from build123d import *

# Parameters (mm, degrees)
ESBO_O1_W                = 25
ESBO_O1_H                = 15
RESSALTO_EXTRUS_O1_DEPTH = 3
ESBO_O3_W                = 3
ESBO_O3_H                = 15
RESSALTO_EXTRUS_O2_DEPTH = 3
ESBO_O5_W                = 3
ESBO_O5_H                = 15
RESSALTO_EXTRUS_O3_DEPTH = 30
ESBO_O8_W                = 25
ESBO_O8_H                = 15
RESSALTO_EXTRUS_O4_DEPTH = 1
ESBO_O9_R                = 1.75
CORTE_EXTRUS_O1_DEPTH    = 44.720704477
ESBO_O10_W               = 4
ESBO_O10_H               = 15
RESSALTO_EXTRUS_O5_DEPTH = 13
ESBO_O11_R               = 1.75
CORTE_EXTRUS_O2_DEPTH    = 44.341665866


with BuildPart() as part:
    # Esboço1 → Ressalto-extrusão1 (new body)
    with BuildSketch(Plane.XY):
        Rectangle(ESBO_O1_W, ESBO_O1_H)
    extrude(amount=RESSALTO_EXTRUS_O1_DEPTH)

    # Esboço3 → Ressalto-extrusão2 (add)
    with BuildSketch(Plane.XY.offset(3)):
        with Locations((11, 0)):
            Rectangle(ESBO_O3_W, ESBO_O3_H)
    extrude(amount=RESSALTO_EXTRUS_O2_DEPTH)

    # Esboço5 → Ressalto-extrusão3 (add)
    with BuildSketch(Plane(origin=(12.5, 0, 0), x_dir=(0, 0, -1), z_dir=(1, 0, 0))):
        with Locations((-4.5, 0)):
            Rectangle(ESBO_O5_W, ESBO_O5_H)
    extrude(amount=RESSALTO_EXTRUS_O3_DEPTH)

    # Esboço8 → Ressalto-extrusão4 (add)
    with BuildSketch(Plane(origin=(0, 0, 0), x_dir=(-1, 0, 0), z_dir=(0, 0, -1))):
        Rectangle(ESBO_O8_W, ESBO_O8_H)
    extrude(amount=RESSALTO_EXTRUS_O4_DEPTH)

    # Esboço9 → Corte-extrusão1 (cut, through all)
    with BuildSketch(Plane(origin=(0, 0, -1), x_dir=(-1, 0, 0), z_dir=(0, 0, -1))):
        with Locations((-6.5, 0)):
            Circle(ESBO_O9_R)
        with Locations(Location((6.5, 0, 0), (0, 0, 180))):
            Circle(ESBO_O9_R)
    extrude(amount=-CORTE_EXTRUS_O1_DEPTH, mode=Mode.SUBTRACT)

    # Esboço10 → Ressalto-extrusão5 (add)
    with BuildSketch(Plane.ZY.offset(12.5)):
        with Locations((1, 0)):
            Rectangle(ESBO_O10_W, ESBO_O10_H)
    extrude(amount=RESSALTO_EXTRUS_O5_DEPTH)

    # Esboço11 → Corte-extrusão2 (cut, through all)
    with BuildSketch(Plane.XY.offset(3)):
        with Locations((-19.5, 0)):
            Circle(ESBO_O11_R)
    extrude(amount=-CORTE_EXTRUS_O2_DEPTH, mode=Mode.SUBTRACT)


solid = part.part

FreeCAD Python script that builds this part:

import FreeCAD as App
import Part
import Sketcher
from FreeCAD import Vector


def add_polygon(sketch, points):
    """Adds a closed chain of lines whose ends are joined by coincident constraints."""
    first, n = sketch.GeometryCount, len(points)
    for a, b in zip(points, points[1:] + points[:1]):
        sketch.addGeometry(Part.LineSegment(App.Vector(*a, 0), App.Vector(*b, 0)), False)
    for i in range(n):
        sketch.addConstraint(Sketcher.Constraint("Coincident", first + i, 2, first + (i + 1) % n, 1))

doc = App.newDocument("Part")
body = doc.addObject("PartDesign::Body", "Body")

sketch1 = body.newObject("Sketcher::SketchObject", "Sketch")
sketch1.AttachmentSupport = (doc.getObject("XY_Plane"), [""])
sketch1.MapMode = "FlatFace"
add_polygon(sketch1, [(-12, 8), (-12, -8), (12, -8), (12, 8)])
sketch1.addConstraint([
    Sketcher.Constraint("Vertical", 0),
    Sketcher.Constraint("Horizontal", 1),
    Sketcher.Constraint("Vertical", 2),
    Sketcher.Constraint("Horizontal", 3),
    Sketcher.Constraint("Symmetric", 0, 2, 2, 2, -1, 1),
    Sketcher.Constraint("DistanceX", 1, 1, 1, 2, 25.0),
    Sketcher.Constraint("DistanceY", 0, 2, 0, 1, 15.0),
])
pad1 = body.newObject("PartDesign::Pad", "Pad")
pad1.Profile = sketch1
pad1.Length = 3

sketch2 = body.newObject("Sketcher::SketchObject", "Sketch001")
sketch2.AttachmentSupport = (doc.getObject("XY_Plane"), [""])
sketch2.MapMode = "FlatFace"
sketch2.AttachmentOffset = App.Placement(Vector(0, 0, 3), App.Rotation())
add_polygon(sketch2, [(9.5, 7.5), (9.5, -7.5), (12.5, -7.5), (12.5, 7.5)])
sketch2.addConstraint([
    Sketcher.Constraint("Vertical", 0),
    Sketcher.Constraint("Horizontal", 1),
    Sketcher.Constraint("Vertical", 2),
    Sketcher.Constraint("Horizontal", 3),
    Sketcher.Constraint("DistanceX", 1, 1, 1, 2, 3.0),
    Sketcher.Constraint("DistanceY", 0, 2, 0, 1, 15.0),
    Sketcher.Constraint("DistanceX", -1, 1, 0, 2, 9.5),
    Sketcher.Constraint("DistanceY", 0, 2, -1, 1, 7.5),
])
pad2 = body.newObject("PartDesign::Pad", "Pad001")
pad2.Profile = sketch2
pad2.Length = 3

sketch3 = body.newObject("Sketcher::SketchObject", "Sketch002")
sketch3.AttachmentSupport = (doc.getObject("YZ_Plane"), [""])
sketch3.MapMode = "FlatFace"
sketch3.AttachmentOffset = App.Placement(Vector(0, 0, 12.5), App.Rotation())
add_polygon(sketch3, [(7.5, 6), (-7.5, 6), (-7.5, 3), (7.5, 3)])
sketch3.addConstraint([
    Sketcher.Constraint("Horizontal", 0),
    Sketcher.Constraint("Vertical", 1),
    Sketcher.Constraint("Horizontal", 2),
    Sketcher.Constraint("Vertical", 3),
    Sketcher.Constraint("DistanceX", 0, 2, 0, 1, 15.0),
    Sketcher.Constraint("DistanceY", 1, 2, 1, 1, 3.0),
    Sketcher.Constraint("DistanceY", -1, 1, 0, 2, 6.0),
    Sketcher.Constraint("DistanceX", 0, 2, -1, 1, 7.5),
])
pad3 = body.newObject("PartDesign::Pad", "Pad002")
pad3.Profile = sketch3
pad3.Length = 30

sketch4 = body.newObject("Sketcher::SketchObject", "Sketch003")
sketch4.AttachmentSupport = (doc.getObject("XY_Plane"), [""])
sketch4.MapMode = "FlatFace"
add_polygon(sketch4, [(12, 8), (12, -8), (-12, -8), (-12, 8)])
sketch4.addConstraint([
    Sketcher.Constraint("Vertical", 0),
    Sketcher.Constraint("Horizontal", 1),
    Sketcher.Constraint("Vertical", 2),
    Sketcher.Constraint("Horizontal", 3),
    Sketcher.Constraint("Symmetric", 0, 2, 2, 2, -1, 1),
    Sketcher.Constraint("DistanceX", 1, 2, 1, 1, 25.0),
    Sketcher.Constraint("DistanceY", 0, 2, 0, 1, 15.0),
])
pad4 = body.newObject("PartDesign::Pad", "Pad003")
pad4.Profile = sketch4
pad4.Length = 1
pad4.Reversed = True

sketch5 = body.newObject("Sketcher::SketchObject", "Sketch004")
sketch5.AttachmentSupport = (doc.getObject("XY_Plane"), [""])
sketch5.MapMode = "FlatFace"
sketch5.AttachmentOffset = App.Placement(Vector(0, 0, -1), App.Rotation())
sketch5.addGeometry([
    Part.Circle(Vector(6.5, 0, 0), Vector(0, 0, 1), 1.8),
    Part.Circle(Vector(-6.5, 0, 0), Vector(0, 0, 1), 1.8),
], False)
sketch5.addConstraint([
    Sketcher.Constraint("Equal", 0, 1),
    Sketcher.Constraint("Symmetric", 0, 3, 1, 3, -1, 1),
    Sketcher.Constraint("PointOnObject", 0, 3, -1),
    Sketcher.Constraint("Diameter", 0, 3.5),
    Sketcher.Constraint("DistanceX", 1, 3, 0, 3, 13.0),
])
pocket1 = body.newObject("PartDesign::Pocket", "Pocket")
pocket1.Profile = sketch5
pocket1.Type = "ThroughAll"
pocket1.Reversed = True

sketch6 = body.newObject("Sketcher::SketchObject", "Sketch005")
sketch6.AttachmentSupport = (doc.getObject("YZ_Plane"), [""])
sketch6.MapMode = "FlatFace"
sketch6.AttachmentOffset = App.Placement(Vector(0, 0, -12.5), App.Rotation())
add_polygon(sketch6, [(7.5, -1), (-7.5, -1), (-7.5, 3), (7.5, 3)])
sketch6.addConstraint([
    Sketcher.Constraint("Horizontal", 0),
    Sketcher.Constraint("Vertical", 1),
    Sketcher.Constraint("Horizontal", 2),
    Sketcher.Constraint("Vertical", 3),
    Sketcher.Constraint("DistanceX", 0, 2, 0, 1, 15.0),
    Sketcher.Constraint("DistanceY", 1, 1, 1, 2, 4.0),
    Sketcher.Constraint("DistanceY", 0, 2, -1, 1, 1.0),
    Sketcher.Constraint("DistanceX", 0, 2, -1, 1, 7.5),
])
pad5 = body.newObject("PartDesign::Pad", "Pad004")
pad5.Profile = sketch6
pad5.Length = 13
pad5.Reversed = True

sketch7 = body.newObject("Sketcher::SketchObject", "Sketch006")
sketch7.AttachmentSupport = (doc.getObject("XY_Plane"), [""])
sketch7.MapMode = "FlatFace"
sketch7.AttachmentOffset = App.Placement(Vector(0, 0, 3), App.Rotation())
sketch7.addGeometry(Part.Circle(Vector(-19.5, 0, 0), Vector(0, 0, 1), 1.8), False)
sketch7.addConstraint([
    Sketcher.Constraint("PointOnObject", 0, 3, -1),
    Sketcher.Constraint("Diameter", 0, 3.5),
    Sketcher.Constraint("DistanceX", 0, 3, -1, 1, 19.5),
])
pocket2 = body.newObject("PartDesign::Pocket", "Pocket001")
pocket2.Profile = sketch7
pocket2.Type = "ThroughAll"

doc.recompute()
